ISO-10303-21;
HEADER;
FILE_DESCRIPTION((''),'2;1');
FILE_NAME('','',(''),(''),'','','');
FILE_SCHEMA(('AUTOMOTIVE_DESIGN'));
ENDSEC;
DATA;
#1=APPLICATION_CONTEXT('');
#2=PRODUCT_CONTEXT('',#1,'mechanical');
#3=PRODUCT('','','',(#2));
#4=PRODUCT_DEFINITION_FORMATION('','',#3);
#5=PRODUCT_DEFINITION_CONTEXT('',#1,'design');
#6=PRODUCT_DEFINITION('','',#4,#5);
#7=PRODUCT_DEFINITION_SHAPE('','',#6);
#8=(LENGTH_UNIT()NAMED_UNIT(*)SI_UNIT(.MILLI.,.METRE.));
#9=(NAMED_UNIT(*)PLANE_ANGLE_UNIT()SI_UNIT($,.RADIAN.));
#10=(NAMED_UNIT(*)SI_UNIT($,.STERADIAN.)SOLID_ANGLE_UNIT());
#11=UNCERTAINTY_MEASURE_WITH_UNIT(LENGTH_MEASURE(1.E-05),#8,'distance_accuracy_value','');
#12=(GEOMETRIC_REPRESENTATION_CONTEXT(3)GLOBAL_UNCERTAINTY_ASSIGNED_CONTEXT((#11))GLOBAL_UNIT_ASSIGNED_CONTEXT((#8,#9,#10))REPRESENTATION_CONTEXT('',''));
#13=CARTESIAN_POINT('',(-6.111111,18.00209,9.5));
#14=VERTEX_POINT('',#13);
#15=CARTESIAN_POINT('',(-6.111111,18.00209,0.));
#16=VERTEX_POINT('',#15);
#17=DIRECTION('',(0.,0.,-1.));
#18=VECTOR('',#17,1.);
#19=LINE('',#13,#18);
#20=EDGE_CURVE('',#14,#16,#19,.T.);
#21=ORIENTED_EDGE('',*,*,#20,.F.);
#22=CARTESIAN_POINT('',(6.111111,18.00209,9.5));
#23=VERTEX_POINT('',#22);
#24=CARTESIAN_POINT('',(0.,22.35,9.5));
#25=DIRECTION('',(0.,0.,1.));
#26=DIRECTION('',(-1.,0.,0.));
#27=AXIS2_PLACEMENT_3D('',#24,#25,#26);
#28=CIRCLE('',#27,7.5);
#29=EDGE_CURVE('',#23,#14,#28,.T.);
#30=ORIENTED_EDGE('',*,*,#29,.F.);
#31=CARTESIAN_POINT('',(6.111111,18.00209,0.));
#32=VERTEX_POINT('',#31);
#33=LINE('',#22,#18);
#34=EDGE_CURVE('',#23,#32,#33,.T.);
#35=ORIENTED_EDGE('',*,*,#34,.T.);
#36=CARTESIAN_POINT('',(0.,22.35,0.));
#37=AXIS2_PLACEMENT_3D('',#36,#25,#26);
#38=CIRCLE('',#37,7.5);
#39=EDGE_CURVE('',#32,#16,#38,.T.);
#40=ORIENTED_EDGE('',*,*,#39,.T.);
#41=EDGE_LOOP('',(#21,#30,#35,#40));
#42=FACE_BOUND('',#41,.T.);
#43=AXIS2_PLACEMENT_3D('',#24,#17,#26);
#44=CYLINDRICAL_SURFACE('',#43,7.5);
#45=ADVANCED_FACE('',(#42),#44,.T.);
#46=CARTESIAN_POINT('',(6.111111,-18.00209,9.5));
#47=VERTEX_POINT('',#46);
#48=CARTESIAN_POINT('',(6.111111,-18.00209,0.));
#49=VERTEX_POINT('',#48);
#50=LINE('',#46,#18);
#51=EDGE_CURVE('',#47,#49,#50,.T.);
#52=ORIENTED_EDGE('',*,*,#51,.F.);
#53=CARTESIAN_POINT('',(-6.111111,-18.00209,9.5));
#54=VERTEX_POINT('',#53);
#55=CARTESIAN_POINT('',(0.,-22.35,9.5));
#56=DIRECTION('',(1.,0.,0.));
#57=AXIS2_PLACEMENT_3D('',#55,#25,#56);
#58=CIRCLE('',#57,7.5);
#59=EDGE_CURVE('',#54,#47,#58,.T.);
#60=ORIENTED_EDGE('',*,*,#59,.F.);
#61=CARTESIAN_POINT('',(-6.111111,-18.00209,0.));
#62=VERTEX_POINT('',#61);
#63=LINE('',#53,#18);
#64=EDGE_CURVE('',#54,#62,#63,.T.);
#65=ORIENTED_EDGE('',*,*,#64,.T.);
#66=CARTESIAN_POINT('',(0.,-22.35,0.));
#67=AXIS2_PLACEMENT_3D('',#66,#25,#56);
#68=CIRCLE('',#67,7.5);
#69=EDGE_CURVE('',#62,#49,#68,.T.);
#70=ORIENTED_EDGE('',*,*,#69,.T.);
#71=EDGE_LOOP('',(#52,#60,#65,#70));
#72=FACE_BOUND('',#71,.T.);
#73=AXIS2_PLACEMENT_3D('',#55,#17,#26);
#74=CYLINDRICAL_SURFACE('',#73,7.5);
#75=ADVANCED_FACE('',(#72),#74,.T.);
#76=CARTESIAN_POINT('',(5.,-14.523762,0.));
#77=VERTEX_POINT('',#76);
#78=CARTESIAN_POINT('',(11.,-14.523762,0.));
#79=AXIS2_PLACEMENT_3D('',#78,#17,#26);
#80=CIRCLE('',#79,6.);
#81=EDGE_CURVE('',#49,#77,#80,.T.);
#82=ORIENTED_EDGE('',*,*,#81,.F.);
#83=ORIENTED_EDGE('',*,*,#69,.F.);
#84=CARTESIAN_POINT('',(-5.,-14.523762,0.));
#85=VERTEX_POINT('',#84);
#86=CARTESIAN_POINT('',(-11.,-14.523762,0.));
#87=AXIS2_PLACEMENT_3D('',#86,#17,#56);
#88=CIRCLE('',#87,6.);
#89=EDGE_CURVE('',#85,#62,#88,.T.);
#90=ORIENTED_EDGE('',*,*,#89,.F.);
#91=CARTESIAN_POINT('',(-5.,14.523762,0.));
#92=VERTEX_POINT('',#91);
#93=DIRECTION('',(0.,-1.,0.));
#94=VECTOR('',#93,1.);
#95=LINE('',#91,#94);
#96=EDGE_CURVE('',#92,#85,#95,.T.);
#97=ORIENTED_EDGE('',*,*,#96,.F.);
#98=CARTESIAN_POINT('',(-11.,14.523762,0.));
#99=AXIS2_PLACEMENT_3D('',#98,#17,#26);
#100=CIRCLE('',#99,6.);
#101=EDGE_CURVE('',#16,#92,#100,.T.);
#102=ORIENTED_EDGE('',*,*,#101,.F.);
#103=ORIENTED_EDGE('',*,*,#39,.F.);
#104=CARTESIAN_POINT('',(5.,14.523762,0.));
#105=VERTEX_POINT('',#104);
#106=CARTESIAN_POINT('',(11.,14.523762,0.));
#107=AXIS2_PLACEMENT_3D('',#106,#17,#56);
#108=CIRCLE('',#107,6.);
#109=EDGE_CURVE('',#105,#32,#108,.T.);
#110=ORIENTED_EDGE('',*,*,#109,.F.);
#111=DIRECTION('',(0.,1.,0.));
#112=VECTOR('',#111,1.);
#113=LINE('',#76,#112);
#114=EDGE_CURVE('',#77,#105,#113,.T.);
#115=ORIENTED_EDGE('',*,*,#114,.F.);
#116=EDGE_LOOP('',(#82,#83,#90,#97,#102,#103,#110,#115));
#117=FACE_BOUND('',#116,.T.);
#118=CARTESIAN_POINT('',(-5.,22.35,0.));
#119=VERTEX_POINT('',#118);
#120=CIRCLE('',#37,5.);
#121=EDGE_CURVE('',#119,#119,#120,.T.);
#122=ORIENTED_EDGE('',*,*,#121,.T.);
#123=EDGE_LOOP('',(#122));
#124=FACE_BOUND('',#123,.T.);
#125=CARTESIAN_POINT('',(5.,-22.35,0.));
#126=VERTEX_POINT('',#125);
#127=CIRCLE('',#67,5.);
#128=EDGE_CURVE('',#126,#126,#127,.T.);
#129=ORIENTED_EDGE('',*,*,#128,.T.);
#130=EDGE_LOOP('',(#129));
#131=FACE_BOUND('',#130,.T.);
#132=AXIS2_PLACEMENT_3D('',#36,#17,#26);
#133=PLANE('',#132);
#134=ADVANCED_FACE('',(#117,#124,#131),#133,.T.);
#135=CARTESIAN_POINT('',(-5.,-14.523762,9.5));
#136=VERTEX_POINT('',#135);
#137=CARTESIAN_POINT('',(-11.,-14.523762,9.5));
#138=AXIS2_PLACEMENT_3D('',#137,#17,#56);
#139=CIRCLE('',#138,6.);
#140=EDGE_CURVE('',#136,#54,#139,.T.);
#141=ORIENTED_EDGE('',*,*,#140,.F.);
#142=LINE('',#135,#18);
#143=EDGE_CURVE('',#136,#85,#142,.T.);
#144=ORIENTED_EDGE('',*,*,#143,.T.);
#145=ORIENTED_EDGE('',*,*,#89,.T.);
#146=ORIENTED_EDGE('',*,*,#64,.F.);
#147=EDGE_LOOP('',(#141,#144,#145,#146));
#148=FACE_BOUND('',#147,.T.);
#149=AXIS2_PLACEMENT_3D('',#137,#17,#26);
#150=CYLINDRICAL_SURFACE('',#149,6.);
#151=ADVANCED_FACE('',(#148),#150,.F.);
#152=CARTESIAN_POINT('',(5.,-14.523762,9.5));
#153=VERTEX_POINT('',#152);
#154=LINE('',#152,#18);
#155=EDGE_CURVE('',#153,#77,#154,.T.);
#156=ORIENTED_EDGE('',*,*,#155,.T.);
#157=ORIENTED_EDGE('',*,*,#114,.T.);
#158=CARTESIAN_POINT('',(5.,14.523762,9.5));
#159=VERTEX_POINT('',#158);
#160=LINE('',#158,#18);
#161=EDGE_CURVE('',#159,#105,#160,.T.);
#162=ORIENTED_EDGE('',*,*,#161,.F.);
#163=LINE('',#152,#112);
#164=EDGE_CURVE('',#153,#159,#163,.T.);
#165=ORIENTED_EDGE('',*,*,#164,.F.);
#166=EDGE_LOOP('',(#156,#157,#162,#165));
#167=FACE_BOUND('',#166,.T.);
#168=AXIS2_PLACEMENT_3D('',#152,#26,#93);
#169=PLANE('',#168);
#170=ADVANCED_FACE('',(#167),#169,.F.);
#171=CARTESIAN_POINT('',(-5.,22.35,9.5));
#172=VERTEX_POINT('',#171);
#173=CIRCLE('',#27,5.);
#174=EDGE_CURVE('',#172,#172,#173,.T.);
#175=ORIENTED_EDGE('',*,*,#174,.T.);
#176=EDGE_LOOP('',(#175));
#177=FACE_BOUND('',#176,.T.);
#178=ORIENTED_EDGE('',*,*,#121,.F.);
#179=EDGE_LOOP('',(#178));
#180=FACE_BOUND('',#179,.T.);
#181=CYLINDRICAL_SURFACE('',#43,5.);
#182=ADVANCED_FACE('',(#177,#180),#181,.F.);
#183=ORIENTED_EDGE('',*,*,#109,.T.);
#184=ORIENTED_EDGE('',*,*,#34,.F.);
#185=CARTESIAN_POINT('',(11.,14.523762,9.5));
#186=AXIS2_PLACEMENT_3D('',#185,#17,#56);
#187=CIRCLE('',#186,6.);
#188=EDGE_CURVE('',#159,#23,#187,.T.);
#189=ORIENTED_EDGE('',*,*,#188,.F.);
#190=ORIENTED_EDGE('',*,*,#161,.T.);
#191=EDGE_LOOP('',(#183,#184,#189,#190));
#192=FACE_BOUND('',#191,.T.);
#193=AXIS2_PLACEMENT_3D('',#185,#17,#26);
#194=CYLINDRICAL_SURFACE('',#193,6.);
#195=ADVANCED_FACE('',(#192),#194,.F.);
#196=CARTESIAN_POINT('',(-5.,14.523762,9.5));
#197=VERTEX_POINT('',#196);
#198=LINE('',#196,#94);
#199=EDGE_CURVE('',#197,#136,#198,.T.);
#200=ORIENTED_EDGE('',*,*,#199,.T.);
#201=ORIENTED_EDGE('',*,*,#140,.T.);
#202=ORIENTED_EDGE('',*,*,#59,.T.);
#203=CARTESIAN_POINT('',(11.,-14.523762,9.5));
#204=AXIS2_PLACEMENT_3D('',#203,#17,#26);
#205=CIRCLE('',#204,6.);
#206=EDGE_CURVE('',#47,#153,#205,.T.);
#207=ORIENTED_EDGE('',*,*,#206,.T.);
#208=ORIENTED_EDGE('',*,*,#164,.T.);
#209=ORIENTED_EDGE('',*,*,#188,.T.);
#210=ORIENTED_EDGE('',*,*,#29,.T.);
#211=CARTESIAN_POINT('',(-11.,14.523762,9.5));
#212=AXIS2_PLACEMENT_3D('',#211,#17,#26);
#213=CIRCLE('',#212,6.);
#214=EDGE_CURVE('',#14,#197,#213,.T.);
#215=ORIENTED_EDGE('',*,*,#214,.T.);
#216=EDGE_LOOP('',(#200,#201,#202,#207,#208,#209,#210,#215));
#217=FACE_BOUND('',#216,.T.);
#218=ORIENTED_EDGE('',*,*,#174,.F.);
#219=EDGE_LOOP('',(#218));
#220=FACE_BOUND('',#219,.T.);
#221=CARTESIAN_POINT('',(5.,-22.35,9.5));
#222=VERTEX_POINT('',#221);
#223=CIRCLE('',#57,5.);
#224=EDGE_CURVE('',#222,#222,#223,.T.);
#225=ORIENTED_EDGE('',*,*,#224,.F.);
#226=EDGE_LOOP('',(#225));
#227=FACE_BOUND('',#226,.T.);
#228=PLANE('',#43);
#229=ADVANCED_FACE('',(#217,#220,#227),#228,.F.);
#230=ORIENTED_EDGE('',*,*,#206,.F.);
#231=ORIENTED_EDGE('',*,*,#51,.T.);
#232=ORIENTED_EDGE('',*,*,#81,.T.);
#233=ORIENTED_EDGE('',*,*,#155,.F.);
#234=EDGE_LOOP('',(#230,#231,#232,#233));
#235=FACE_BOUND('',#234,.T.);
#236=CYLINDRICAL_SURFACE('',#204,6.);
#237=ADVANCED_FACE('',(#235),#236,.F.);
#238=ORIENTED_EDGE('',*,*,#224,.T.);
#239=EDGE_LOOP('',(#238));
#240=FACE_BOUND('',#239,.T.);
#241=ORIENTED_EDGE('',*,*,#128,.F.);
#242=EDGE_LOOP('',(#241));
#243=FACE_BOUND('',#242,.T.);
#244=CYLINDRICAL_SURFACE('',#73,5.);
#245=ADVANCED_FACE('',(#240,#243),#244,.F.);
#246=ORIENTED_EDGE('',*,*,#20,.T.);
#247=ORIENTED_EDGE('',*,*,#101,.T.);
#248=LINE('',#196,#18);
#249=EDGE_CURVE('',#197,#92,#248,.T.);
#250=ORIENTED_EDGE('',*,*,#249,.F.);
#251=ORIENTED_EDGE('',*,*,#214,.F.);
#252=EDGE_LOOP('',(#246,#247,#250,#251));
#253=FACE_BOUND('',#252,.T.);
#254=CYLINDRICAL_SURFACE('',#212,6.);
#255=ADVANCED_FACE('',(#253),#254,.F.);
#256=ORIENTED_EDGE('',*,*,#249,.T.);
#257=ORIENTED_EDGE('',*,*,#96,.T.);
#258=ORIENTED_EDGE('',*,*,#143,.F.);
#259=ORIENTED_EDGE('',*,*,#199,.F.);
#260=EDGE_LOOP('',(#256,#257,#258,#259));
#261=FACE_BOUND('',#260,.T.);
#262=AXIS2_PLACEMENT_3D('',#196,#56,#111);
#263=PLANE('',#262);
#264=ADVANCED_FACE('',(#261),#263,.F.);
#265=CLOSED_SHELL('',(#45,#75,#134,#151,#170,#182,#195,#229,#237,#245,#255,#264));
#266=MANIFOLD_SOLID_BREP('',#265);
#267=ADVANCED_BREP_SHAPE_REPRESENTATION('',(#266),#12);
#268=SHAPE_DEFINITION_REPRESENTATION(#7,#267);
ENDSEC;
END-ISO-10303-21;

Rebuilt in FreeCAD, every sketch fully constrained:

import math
import FreeCAD as App
import Part
import Sketcher
from FreeCAD import Vector

doc = App.newDocument("Part")
body = doc.addObject("PartDesign::Body", "Body")

# Sketch on XY plane
sketch1 = doc.addObject("Sketcher::SketchObject", "Sketch")
body.addObject(sketch1)
sketch1.AttachmentSupport = (doc.XY_Plane, [""])
sketch1.MapMode = "FlatFace"
sketch1.addGeometry(Part.LineSegment(Vector(-5, 14.5, 0), Vector(-5, -14.5, 0)), False)
sketch1.addGeometry(Part.ArcOfCircle(Part.Circle(Vector(-11, -14.5, 0), Vector(0, 0, 1), 6), math.radians(-35), math.radians(0)), False)
sketch1.addGeometry(Part.ArcOfCircle(Part.Circle(Vector(0, -22.4, 0), Vector(0, 0, 1), 7.5), math.radians(145), math.radians(395)), False)
sketch1.addGeometry(Part.ArcOfCircle(Part.Circle(Vector(11, -14.5, 0), Vector(0, 0, 1), 6), math.radians(-180), math.radians(-145)), False)
sketch1.addGeometry(Part.LineSegment(Vector(5, -14.5, 0), Vector(5, 14.5, 0)), False)
sketch1.addGeometry(Part.ArcOfCircle(Part.Circle(Vector(11, 14.5, 0), Vector(0, 0, 1), 6), math.radians(145), math.radians(180)), False)
sketch1.addGeometry(Part.ArcOfCircle(Part.Circle(Vector(0, 22.4, 0), Vector(0, 0, 1), 7.5), math.radians(-35), math.radians(215)), False)
sketch1.addGeometry(Part.ArcOfCircle(Part.Circle(Vector(-11, 14.5, 0), Vector(0, 0, 1), 6), math.radians(0), math.radians(35)), False)
sketch1.addGeometry(Part.Circle(Vector(0, -22.4, 0), Vector(0, 0, 1), 5), False)
sketch1.addGeometry(Part.Circle(Vector(0, 22.4, 0), Vector(0, 0, 1), 5), False)
sketch1.addConstraint(Sketcher.Constraint("Tangent", 0, 2, 1, 2))
sketch1.addConstraint(Sketcher.Constraint("Tangent", 1, 1, 2, 1))
sketch1.addConstraint(Sketcher.Constraint("Tangent", 2, 2, 3, 2))
sketch1.addConstraint(Sketcher.Constraint("Tangent", 3, 1, 4, 1))
sketch1.addConstraint(Sketcher.Constraint("Tangent", 4, 2, 5, 2))
sketch1.addConstraint(Sketcher.Constraint("Tangent", 5, 1, 6, 1))
sketch1.addConstraint(Sketcher.Constraint("Tangent", 6, 2, 7, 2))
sketch1.addConstraint(Sketcher.Constraint("Tangent", 7, 1, 0, 1))
sketch1.addConstraint(Sketcher.Constraint("Vertical", 0))
sketch1.addConstraint(Sketcher.Constraint("Vertical", 4))
sketch1.addConstraint(Sketcher.Constraint("Coincident", 8, 3, 2, 3))
sketch1.addConstraint(Sketcher.Constraint("Coincident", 9, 3, 6, 3))
sketch1.addConstraint(Sketcher.Constraint("Equal", 1, 3))
sketch1.addConstraint(Sketcher.Constraint("Equal", 3, 5))
sketch1.addConstraint(Sketcher.Constraint("Equal", 2, 6))
sketch1.addConstraint(Sketcher.Constraint("Equal", 5, 7))
sketch1.addConstraint(Sketcher.Constraint("Equal", 8, 9))
sketch1.addConstraint(Sketcher.Constraint("Symmetric", 1, 3, 5, 3, -1, 1))
sketch1.addConstraint(Sketcher.Constraint("Symmetric", 2, 3, 6, 3, -1))
sketch1.addConstraint(Sketcher.Constraint("Diameter", 8, 10.0))
sketch1.addConstraint(Sketcher.Constraint("Radius", 1, 6.0))
sketch1.addConstraint(Sketcher.Constraint("Radius", 2, 7.5))
sketch1.addConstraint(Sketcher.Constraint("DistanceX", 1, 3, -1, 1, 11.0))
sketch1.addConstraint(Sketcher.Constraint("DistanceY", 2, 3, 6, 3, 44.7))
pad1 = doc.addObject("PartDesign::Pad", "Pad")
body.addObject(pad1)
pad1.Profile = sketch1
pad1.Length = 9.5

doc.recompute()
